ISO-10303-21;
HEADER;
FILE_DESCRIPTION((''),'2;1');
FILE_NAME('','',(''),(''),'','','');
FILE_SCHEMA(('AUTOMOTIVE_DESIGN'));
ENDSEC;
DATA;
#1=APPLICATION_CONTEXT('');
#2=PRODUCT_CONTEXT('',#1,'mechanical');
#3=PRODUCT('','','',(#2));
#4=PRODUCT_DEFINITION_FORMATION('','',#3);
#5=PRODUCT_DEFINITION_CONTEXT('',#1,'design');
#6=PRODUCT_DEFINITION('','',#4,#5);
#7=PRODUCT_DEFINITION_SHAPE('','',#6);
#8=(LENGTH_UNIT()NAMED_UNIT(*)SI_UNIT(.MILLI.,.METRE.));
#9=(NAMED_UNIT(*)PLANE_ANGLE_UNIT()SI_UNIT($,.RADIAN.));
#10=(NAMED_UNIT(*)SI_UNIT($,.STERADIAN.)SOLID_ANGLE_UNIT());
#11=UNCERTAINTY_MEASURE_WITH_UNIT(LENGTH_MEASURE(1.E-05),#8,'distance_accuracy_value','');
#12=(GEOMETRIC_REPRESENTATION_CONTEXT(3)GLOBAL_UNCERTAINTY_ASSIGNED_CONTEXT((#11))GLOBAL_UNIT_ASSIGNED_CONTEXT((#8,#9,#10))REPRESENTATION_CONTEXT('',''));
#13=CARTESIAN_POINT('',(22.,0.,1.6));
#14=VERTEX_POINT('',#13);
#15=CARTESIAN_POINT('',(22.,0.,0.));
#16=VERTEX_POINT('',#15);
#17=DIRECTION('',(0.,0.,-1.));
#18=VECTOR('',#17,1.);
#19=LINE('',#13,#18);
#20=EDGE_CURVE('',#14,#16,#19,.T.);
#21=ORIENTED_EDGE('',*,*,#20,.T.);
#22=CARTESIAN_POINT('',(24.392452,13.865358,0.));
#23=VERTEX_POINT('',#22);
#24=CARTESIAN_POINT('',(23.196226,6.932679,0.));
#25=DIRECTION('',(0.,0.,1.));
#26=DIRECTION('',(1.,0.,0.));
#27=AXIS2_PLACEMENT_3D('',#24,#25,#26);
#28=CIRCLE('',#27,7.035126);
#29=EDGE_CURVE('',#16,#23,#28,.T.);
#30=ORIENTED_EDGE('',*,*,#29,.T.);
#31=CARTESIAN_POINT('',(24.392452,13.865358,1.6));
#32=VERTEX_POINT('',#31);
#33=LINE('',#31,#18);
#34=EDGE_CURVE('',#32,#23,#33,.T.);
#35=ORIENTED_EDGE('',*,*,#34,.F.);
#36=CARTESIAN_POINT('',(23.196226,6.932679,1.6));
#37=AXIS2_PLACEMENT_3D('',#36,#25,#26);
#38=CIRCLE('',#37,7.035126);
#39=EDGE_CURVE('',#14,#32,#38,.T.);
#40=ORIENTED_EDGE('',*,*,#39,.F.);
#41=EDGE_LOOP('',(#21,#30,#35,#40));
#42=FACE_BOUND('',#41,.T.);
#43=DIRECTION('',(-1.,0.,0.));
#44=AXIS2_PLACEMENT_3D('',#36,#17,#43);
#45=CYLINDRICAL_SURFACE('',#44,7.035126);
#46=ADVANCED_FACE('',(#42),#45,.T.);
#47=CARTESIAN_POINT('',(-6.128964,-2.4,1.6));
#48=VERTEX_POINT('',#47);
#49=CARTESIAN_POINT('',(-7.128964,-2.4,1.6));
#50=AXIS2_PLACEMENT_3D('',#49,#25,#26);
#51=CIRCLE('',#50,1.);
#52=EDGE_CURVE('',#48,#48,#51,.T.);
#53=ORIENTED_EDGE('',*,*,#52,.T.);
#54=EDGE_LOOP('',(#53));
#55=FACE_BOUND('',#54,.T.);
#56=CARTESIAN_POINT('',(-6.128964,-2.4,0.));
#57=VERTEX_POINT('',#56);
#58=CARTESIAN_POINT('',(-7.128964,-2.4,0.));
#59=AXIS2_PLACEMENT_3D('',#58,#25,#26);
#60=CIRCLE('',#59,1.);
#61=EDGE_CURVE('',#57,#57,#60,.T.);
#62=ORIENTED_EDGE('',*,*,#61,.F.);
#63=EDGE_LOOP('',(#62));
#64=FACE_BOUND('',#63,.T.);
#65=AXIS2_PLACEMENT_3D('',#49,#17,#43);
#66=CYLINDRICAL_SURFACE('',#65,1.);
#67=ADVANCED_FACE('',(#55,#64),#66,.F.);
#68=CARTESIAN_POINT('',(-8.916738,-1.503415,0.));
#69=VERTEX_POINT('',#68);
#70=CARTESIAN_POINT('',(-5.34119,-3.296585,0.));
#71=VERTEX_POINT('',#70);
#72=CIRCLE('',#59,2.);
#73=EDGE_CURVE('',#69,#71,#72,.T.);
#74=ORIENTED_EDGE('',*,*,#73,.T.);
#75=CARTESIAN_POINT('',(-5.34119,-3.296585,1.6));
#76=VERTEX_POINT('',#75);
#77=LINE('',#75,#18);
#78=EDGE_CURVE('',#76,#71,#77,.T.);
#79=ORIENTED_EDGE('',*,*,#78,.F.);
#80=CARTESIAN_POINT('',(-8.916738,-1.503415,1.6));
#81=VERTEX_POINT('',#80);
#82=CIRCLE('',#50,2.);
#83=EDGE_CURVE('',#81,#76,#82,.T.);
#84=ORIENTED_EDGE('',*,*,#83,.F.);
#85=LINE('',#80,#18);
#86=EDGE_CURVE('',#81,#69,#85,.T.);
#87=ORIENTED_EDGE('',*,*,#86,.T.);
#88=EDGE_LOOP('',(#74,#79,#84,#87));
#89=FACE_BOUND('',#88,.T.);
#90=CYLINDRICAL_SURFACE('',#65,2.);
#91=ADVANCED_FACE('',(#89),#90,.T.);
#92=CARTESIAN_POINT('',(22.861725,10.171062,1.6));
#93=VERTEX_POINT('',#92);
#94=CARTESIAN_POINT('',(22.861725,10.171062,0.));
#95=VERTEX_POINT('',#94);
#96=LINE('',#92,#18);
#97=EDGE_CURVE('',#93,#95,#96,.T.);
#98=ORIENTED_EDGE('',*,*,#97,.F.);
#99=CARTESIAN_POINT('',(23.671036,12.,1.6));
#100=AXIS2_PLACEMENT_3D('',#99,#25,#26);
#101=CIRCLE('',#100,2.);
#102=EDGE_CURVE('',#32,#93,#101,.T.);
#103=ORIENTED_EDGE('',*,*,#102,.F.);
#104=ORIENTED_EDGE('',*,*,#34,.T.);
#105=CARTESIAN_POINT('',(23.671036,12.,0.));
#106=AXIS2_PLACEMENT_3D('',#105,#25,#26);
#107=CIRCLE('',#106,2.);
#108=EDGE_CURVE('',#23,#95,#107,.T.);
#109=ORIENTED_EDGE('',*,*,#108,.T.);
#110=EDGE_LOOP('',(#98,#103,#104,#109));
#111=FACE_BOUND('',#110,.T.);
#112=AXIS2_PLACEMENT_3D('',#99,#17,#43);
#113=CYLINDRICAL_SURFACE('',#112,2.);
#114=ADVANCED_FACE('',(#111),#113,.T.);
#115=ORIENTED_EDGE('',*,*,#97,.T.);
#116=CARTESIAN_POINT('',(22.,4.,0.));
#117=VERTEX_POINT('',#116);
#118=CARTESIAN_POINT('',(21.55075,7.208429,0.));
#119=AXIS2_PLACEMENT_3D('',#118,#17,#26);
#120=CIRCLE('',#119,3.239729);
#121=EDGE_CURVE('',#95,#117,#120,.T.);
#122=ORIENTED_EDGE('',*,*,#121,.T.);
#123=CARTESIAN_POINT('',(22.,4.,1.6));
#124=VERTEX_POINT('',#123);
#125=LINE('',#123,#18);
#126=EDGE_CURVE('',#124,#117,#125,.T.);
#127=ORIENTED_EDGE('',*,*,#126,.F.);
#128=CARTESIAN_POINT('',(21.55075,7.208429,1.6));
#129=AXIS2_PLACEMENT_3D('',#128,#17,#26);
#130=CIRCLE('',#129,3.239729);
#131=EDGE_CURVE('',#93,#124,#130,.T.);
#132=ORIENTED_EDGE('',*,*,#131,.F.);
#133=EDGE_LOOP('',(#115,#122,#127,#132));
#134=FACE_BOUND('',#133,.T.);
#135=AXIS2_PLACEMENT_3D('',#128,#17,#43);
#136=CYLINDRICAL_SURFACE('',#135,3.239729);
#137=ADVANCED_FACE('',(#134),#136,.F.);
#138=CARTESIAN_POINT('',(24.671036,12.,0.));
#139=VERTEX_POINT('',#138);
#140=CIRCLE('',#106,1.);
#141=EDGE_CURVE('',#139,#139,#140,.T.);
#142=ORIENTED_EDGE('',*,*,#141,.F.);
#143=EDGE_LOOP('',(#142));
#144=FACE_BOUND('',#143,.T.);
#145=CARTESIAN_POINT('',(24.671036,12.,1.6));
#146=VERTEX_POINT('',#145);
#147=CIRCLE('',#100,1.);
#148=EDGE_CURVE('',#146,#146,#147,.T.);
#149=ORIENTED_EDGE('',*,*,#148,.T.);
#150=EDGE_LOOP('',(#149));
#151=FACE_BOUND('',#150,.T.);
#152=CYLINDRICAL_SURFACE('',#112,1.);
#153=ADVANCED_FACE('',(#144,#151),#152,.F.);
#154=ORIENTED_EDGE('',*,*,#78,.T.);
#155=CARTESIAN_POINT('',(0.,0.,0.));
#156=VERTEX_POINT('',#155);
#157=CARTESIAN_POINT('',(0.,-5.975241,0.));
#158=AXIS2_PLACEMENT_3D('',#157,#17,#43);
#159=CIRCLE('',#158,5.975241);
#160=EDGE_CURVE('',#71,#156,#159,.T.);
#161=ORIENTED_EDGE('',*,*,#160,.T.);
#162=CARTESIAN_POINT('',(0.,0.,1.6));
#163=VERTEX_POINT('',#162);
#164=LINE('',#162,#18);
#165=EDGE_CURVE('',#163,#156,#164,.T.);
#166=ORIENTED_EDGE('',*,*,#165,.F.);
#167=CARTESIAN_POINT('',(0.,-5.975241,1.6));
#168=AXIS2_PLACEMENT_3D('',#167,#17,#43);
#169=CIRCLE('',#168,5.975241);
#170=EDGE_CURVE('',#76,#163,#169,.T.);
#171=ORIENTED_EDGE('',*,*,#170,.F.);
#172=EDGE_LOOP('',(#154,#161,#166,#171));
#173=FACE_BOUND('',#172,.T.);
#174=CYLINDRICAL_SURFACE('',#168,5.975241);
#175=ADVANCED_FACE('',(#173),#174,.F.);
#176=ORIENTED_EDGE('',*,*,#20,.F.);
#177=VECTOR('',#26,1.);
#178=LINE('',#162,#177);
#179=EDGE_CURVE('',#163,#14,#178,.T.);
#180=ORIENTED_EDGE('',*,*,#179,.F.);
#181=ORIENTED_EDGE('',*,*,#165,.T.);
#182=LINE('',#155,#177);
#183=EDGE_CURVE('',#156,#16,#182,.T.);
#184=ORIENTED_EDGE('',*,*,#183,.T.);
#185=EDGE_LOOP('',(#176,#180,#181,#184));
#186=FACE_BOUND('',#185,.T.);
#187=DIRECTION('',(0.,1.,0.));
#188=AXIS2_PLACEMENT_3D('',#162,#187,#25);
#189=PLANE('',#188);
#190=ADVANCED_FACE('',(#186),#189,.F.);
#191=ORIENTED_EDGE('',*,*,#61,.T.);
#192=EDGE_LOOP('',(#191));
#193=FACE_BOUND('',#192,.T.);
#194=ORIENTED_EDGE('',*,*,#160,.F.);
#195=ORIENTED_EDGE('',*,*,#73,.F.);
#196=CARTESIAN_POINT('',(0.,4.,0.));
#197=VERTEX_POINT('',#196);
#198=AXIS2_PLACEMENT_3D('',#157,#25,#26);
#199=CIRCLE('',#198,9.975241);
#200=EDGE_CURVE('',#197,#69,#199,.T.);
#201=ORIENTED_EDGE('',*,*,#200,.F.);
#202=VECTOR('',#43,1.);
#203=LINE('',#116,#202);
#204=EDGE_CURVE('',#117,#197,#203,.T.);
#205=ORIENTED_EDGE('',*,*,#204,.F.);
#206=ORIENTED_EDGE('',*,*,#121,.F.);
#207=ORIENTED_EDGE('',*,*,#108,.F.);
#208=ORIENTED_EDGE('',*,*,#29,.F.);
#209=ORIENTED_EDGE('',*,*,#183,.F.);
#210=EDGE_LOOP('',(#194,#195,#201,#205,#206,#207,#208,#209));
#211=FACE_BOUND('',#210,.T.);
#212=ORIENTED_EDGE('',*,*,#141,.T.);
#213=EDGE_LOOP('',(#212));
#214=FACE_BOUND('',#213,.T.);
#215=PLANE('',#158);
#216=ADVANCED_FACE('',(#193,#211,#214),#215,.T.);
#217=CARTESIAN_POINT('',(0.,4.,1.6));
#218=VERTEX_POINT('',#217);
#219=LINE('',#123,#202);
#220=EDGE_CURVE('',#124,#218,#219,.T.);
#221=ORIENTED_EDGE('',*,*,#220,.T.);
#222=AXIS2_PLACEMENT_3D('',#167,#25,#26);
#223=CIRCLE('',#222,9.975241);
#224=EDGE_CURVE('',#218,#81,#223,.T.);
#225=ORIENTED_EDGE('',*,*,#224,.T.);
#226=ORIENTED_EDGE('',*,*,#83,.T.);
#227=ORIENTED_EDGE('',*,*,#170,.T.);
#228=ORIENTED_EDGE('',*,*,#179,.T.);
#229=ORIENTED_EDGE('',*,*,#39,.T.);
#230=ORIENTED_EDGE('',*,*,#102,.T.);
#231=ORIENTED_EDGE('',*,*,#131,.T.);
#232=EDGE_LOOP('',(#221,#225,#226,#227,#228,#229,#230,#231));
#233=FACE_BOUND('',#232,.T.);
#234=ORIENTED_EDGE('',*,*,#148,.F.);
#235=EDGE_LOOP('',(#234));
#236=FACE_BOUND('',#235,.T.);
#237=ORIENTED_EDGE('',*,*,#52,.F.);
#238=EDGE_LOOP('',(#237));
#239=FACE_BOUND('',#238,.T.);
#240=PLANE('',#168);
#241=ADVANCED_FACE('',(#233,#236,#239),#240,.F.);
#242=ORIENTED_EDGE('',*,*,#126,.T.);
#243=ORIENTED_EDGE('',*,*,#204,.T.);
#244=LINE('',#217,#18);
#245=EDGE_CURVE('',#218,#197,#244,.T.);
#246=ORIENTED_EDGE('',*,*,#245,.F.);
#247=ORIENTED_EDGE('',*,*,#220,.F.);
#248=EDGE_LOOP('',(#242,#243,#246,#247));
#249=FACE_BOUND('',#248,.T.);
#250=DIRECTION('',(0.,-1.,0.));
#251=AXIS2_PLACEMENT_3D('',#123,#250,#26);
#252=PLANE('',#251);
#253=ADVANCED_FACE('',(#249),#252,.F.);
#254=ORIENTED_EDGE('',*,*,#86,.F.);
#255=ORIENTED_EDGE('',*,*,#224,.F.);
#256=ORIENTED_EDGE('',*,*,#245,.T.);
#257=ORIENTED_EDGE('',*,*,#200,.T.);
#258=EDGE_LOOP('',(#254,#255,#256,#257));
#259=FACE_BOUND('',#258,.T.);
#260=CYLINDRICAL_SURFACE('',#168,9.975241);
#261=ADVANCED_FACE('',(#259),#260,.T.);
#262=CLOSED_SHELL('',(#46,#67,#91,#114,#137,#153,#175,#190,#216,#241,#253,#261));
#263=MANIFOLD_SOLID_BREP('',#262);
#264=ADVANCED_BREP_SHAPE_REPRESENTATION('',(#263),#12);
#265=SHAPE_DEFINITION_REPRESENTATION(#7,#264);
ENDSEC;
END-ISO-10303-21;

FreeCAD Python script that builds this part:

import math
import FreeCAD as App
import Part
import Sketcher
Q = App.Units.Quantity

doc = App.newDocument("Part")
params = doc.addObject("Spreadsheet::Sheet", "Params")
for row, (alias, value) in enumerate([
    ("sketch1_diameter", "2 mm"),
    ("sketch1_radius", "2 mm"),
    ("sketch1_width", "22 mm"),
    ("pad1_length", "1.6 mm"),
], start=1):
    params.set(f"A{row}", alias)
    params.set(f"B{row}", "=" + value)
    params.setAlias(f"B{row}", alias)

body = doc.addObject("PartDesign::Body", "Body")

sketch1 = body.newObject("Sketcher::SketchObject", "Sketch")
sketch1.AttachmentSupport = (doc.getObject("XY_Plane"), [""])
sketch1.MapMode = "FlatFace"
sketch1.addGeometry(Part.LineSegment(App.Vector(0, 0, 0), App.Vector(22, 0, 0)), False)
sketch1.addGeometry(Part.ArcOfCircle(Part.Circle(App.Vector(23.2, 6.9, 0), App.Vector(0, 0, 1), 7), math.radians(-100), math.radians(80)), False)
sketch1.addGeometry(Part.ArcOfCircle(Part.Circle(App.Vector(23.7, 12, 0), App.Vector(0, 0, 1), 2), math.radians(69), math.radians(246)), False)
sketch1.addGeometry(Part.ArcOfCircle(Part.Circle(App.Vector(21.6, 7.2, 0), App.Vector(0, 0, 1), 3.2), math.radians(-82), math.radians(66)), False)
sketch1.addGeometry(Part.LineSegment(App.Vector(22, 4, 0), App.Vector(0, 4, 0)), False)
sketch1.addGeometry(Part.ArcOfCircle(Part.Circle(App.Vector(0, -6, 0), App.Vector(0, 0, 1), 10), math.radians(90), math.radians(153)), False)
sketch1.addGeometry(Part.ArcOfCircle(Part.Circle(App.Vector(-7.1, -2.4, 0), App.Vector(0, 0, 1), 2), math.radians(153), math.radians(333)), False)
sketch1.addGeometry(Part.ArcOfCircle(Part.Circle(App.Vector(0, -6, 0), App.Vector(0, 0, 1), 6), math.radians(90), math.radians(153)), False)
sketch1.addGeometry(Part.Circle(App.Vector(-7.1, -2.4, 0), App.Vector(0, 0, 1), 1), False)
sketch1.addGeometry(Part.Circle(App.Vector(23.7, 12, 0), App.Vector(0, 0, 1), 1), False)
sketch1.addConstraint(Sketcher.Constraint("Coincident", 0, 2, 1, 1))
sketch1.addConstraint(Sketcher.Constraint("Coincident", 1, 2, 2, 1))
sketch1.addConstraint(Sketcher.Constraint("Tangent", 2, 2, 3, 2))
sketch1.addConstraint(Sketcher.Constraint("Coincident", 3, 1, 4, 1))
sketch1.addConstraint(Sketcher.Constraint("Tangent", 4, 2, 5, 1))
sketch1.addConstraint(Sketcher.Constraint("Tangent", 5, 2, 6, 1))
sketch1.addConstraint(Sketcher.Constraint("Tangent", 6, 2, 7, 2))
sketch1.addConstraint(Sketcher.Constraint("Tangent", 7, 1, 0, 1))
sketch1.addConstraint(Sketcher.Constraint("Horizontal", 0))
sketch1.addConstraint(Sketcher.Constraint("Horizontal", 4))
sketch1.addConstraint(Sketcher.Constraint("Coincident", 7, 1, -1, 1))
sketch1.addConstraint(Sketcher.Constraint("Coincident", 7, 3, 5, 3))
sketch1.addConstraint(Sketcher.Constraint("Coincident", 8, 3, 6, 3))
sketch1.addConstraint(Sketcher.Constraint("Coincident", 9, 3, 2, 3))
sketch1.addConstraint(Sketcher.Constraint("Equal", 2, 6))
sketch1.addConstraint(Sketcher.Constraint("Equal", 8, 9))
sketch1.addConstraint(Sketcher.Constraint("Vertical", 0, 2, 3, 1))
sketch1.addConstraint(Sketcher.Constraint("Diameter", 8, Q("2 mm")))
sketch1.addConstraint(Sketcher.Constraint("Radius", 2, Q("2 mm")))
sketch1.addConstraint(Sketcher.Constraint("DistanceX", 0, 1, 0, 2, Q("22 mm")))
sketch1.addConstraint(Sketcher.Constraint("DistanceY", -1, 1, 2, 3, Q("12 mm")))
sketch1.addConstraint(Sketcher.Constraint("DistanceY", 6, 3, -1, 1, Q("2.4 mm")))
sketch1.addConstraint(Sketcher.Constraint("DistanceX", 6, 3, 2, 3, Q("30.8 mm")))
sketch1.addConstraint(Sketcher.Constraint("Radius", 3, Q("3.239729 mm")))
sketch1.addConstraint(Sketcher.Constraint("Radius", 5, Q("9.975241 mm")))
sketch1.addConstraint(Sketcher.Constraint("Radius", 1, Q("7.035126 mm")))
sketch1.addConstraint(Sketcher.Constraint("DistanceX", 2, 2, 1, 3, Q("0.334501 mm")))
sketch1.setExpression("Constraints[17]", "Params.sketch1_diameter")
sketch1.setExpression("Constraints[18]", "Params.sketch1_radius")
sketch1.setExpression("Constraints[19]", "Params.sketch1_width")
pad1 = body.newObject("PartDesign::Pad", "Pad")
pad1.Profile = sketch1
pad1.setExpression("Length", "Params.pad1_length")

doc.recompute()
